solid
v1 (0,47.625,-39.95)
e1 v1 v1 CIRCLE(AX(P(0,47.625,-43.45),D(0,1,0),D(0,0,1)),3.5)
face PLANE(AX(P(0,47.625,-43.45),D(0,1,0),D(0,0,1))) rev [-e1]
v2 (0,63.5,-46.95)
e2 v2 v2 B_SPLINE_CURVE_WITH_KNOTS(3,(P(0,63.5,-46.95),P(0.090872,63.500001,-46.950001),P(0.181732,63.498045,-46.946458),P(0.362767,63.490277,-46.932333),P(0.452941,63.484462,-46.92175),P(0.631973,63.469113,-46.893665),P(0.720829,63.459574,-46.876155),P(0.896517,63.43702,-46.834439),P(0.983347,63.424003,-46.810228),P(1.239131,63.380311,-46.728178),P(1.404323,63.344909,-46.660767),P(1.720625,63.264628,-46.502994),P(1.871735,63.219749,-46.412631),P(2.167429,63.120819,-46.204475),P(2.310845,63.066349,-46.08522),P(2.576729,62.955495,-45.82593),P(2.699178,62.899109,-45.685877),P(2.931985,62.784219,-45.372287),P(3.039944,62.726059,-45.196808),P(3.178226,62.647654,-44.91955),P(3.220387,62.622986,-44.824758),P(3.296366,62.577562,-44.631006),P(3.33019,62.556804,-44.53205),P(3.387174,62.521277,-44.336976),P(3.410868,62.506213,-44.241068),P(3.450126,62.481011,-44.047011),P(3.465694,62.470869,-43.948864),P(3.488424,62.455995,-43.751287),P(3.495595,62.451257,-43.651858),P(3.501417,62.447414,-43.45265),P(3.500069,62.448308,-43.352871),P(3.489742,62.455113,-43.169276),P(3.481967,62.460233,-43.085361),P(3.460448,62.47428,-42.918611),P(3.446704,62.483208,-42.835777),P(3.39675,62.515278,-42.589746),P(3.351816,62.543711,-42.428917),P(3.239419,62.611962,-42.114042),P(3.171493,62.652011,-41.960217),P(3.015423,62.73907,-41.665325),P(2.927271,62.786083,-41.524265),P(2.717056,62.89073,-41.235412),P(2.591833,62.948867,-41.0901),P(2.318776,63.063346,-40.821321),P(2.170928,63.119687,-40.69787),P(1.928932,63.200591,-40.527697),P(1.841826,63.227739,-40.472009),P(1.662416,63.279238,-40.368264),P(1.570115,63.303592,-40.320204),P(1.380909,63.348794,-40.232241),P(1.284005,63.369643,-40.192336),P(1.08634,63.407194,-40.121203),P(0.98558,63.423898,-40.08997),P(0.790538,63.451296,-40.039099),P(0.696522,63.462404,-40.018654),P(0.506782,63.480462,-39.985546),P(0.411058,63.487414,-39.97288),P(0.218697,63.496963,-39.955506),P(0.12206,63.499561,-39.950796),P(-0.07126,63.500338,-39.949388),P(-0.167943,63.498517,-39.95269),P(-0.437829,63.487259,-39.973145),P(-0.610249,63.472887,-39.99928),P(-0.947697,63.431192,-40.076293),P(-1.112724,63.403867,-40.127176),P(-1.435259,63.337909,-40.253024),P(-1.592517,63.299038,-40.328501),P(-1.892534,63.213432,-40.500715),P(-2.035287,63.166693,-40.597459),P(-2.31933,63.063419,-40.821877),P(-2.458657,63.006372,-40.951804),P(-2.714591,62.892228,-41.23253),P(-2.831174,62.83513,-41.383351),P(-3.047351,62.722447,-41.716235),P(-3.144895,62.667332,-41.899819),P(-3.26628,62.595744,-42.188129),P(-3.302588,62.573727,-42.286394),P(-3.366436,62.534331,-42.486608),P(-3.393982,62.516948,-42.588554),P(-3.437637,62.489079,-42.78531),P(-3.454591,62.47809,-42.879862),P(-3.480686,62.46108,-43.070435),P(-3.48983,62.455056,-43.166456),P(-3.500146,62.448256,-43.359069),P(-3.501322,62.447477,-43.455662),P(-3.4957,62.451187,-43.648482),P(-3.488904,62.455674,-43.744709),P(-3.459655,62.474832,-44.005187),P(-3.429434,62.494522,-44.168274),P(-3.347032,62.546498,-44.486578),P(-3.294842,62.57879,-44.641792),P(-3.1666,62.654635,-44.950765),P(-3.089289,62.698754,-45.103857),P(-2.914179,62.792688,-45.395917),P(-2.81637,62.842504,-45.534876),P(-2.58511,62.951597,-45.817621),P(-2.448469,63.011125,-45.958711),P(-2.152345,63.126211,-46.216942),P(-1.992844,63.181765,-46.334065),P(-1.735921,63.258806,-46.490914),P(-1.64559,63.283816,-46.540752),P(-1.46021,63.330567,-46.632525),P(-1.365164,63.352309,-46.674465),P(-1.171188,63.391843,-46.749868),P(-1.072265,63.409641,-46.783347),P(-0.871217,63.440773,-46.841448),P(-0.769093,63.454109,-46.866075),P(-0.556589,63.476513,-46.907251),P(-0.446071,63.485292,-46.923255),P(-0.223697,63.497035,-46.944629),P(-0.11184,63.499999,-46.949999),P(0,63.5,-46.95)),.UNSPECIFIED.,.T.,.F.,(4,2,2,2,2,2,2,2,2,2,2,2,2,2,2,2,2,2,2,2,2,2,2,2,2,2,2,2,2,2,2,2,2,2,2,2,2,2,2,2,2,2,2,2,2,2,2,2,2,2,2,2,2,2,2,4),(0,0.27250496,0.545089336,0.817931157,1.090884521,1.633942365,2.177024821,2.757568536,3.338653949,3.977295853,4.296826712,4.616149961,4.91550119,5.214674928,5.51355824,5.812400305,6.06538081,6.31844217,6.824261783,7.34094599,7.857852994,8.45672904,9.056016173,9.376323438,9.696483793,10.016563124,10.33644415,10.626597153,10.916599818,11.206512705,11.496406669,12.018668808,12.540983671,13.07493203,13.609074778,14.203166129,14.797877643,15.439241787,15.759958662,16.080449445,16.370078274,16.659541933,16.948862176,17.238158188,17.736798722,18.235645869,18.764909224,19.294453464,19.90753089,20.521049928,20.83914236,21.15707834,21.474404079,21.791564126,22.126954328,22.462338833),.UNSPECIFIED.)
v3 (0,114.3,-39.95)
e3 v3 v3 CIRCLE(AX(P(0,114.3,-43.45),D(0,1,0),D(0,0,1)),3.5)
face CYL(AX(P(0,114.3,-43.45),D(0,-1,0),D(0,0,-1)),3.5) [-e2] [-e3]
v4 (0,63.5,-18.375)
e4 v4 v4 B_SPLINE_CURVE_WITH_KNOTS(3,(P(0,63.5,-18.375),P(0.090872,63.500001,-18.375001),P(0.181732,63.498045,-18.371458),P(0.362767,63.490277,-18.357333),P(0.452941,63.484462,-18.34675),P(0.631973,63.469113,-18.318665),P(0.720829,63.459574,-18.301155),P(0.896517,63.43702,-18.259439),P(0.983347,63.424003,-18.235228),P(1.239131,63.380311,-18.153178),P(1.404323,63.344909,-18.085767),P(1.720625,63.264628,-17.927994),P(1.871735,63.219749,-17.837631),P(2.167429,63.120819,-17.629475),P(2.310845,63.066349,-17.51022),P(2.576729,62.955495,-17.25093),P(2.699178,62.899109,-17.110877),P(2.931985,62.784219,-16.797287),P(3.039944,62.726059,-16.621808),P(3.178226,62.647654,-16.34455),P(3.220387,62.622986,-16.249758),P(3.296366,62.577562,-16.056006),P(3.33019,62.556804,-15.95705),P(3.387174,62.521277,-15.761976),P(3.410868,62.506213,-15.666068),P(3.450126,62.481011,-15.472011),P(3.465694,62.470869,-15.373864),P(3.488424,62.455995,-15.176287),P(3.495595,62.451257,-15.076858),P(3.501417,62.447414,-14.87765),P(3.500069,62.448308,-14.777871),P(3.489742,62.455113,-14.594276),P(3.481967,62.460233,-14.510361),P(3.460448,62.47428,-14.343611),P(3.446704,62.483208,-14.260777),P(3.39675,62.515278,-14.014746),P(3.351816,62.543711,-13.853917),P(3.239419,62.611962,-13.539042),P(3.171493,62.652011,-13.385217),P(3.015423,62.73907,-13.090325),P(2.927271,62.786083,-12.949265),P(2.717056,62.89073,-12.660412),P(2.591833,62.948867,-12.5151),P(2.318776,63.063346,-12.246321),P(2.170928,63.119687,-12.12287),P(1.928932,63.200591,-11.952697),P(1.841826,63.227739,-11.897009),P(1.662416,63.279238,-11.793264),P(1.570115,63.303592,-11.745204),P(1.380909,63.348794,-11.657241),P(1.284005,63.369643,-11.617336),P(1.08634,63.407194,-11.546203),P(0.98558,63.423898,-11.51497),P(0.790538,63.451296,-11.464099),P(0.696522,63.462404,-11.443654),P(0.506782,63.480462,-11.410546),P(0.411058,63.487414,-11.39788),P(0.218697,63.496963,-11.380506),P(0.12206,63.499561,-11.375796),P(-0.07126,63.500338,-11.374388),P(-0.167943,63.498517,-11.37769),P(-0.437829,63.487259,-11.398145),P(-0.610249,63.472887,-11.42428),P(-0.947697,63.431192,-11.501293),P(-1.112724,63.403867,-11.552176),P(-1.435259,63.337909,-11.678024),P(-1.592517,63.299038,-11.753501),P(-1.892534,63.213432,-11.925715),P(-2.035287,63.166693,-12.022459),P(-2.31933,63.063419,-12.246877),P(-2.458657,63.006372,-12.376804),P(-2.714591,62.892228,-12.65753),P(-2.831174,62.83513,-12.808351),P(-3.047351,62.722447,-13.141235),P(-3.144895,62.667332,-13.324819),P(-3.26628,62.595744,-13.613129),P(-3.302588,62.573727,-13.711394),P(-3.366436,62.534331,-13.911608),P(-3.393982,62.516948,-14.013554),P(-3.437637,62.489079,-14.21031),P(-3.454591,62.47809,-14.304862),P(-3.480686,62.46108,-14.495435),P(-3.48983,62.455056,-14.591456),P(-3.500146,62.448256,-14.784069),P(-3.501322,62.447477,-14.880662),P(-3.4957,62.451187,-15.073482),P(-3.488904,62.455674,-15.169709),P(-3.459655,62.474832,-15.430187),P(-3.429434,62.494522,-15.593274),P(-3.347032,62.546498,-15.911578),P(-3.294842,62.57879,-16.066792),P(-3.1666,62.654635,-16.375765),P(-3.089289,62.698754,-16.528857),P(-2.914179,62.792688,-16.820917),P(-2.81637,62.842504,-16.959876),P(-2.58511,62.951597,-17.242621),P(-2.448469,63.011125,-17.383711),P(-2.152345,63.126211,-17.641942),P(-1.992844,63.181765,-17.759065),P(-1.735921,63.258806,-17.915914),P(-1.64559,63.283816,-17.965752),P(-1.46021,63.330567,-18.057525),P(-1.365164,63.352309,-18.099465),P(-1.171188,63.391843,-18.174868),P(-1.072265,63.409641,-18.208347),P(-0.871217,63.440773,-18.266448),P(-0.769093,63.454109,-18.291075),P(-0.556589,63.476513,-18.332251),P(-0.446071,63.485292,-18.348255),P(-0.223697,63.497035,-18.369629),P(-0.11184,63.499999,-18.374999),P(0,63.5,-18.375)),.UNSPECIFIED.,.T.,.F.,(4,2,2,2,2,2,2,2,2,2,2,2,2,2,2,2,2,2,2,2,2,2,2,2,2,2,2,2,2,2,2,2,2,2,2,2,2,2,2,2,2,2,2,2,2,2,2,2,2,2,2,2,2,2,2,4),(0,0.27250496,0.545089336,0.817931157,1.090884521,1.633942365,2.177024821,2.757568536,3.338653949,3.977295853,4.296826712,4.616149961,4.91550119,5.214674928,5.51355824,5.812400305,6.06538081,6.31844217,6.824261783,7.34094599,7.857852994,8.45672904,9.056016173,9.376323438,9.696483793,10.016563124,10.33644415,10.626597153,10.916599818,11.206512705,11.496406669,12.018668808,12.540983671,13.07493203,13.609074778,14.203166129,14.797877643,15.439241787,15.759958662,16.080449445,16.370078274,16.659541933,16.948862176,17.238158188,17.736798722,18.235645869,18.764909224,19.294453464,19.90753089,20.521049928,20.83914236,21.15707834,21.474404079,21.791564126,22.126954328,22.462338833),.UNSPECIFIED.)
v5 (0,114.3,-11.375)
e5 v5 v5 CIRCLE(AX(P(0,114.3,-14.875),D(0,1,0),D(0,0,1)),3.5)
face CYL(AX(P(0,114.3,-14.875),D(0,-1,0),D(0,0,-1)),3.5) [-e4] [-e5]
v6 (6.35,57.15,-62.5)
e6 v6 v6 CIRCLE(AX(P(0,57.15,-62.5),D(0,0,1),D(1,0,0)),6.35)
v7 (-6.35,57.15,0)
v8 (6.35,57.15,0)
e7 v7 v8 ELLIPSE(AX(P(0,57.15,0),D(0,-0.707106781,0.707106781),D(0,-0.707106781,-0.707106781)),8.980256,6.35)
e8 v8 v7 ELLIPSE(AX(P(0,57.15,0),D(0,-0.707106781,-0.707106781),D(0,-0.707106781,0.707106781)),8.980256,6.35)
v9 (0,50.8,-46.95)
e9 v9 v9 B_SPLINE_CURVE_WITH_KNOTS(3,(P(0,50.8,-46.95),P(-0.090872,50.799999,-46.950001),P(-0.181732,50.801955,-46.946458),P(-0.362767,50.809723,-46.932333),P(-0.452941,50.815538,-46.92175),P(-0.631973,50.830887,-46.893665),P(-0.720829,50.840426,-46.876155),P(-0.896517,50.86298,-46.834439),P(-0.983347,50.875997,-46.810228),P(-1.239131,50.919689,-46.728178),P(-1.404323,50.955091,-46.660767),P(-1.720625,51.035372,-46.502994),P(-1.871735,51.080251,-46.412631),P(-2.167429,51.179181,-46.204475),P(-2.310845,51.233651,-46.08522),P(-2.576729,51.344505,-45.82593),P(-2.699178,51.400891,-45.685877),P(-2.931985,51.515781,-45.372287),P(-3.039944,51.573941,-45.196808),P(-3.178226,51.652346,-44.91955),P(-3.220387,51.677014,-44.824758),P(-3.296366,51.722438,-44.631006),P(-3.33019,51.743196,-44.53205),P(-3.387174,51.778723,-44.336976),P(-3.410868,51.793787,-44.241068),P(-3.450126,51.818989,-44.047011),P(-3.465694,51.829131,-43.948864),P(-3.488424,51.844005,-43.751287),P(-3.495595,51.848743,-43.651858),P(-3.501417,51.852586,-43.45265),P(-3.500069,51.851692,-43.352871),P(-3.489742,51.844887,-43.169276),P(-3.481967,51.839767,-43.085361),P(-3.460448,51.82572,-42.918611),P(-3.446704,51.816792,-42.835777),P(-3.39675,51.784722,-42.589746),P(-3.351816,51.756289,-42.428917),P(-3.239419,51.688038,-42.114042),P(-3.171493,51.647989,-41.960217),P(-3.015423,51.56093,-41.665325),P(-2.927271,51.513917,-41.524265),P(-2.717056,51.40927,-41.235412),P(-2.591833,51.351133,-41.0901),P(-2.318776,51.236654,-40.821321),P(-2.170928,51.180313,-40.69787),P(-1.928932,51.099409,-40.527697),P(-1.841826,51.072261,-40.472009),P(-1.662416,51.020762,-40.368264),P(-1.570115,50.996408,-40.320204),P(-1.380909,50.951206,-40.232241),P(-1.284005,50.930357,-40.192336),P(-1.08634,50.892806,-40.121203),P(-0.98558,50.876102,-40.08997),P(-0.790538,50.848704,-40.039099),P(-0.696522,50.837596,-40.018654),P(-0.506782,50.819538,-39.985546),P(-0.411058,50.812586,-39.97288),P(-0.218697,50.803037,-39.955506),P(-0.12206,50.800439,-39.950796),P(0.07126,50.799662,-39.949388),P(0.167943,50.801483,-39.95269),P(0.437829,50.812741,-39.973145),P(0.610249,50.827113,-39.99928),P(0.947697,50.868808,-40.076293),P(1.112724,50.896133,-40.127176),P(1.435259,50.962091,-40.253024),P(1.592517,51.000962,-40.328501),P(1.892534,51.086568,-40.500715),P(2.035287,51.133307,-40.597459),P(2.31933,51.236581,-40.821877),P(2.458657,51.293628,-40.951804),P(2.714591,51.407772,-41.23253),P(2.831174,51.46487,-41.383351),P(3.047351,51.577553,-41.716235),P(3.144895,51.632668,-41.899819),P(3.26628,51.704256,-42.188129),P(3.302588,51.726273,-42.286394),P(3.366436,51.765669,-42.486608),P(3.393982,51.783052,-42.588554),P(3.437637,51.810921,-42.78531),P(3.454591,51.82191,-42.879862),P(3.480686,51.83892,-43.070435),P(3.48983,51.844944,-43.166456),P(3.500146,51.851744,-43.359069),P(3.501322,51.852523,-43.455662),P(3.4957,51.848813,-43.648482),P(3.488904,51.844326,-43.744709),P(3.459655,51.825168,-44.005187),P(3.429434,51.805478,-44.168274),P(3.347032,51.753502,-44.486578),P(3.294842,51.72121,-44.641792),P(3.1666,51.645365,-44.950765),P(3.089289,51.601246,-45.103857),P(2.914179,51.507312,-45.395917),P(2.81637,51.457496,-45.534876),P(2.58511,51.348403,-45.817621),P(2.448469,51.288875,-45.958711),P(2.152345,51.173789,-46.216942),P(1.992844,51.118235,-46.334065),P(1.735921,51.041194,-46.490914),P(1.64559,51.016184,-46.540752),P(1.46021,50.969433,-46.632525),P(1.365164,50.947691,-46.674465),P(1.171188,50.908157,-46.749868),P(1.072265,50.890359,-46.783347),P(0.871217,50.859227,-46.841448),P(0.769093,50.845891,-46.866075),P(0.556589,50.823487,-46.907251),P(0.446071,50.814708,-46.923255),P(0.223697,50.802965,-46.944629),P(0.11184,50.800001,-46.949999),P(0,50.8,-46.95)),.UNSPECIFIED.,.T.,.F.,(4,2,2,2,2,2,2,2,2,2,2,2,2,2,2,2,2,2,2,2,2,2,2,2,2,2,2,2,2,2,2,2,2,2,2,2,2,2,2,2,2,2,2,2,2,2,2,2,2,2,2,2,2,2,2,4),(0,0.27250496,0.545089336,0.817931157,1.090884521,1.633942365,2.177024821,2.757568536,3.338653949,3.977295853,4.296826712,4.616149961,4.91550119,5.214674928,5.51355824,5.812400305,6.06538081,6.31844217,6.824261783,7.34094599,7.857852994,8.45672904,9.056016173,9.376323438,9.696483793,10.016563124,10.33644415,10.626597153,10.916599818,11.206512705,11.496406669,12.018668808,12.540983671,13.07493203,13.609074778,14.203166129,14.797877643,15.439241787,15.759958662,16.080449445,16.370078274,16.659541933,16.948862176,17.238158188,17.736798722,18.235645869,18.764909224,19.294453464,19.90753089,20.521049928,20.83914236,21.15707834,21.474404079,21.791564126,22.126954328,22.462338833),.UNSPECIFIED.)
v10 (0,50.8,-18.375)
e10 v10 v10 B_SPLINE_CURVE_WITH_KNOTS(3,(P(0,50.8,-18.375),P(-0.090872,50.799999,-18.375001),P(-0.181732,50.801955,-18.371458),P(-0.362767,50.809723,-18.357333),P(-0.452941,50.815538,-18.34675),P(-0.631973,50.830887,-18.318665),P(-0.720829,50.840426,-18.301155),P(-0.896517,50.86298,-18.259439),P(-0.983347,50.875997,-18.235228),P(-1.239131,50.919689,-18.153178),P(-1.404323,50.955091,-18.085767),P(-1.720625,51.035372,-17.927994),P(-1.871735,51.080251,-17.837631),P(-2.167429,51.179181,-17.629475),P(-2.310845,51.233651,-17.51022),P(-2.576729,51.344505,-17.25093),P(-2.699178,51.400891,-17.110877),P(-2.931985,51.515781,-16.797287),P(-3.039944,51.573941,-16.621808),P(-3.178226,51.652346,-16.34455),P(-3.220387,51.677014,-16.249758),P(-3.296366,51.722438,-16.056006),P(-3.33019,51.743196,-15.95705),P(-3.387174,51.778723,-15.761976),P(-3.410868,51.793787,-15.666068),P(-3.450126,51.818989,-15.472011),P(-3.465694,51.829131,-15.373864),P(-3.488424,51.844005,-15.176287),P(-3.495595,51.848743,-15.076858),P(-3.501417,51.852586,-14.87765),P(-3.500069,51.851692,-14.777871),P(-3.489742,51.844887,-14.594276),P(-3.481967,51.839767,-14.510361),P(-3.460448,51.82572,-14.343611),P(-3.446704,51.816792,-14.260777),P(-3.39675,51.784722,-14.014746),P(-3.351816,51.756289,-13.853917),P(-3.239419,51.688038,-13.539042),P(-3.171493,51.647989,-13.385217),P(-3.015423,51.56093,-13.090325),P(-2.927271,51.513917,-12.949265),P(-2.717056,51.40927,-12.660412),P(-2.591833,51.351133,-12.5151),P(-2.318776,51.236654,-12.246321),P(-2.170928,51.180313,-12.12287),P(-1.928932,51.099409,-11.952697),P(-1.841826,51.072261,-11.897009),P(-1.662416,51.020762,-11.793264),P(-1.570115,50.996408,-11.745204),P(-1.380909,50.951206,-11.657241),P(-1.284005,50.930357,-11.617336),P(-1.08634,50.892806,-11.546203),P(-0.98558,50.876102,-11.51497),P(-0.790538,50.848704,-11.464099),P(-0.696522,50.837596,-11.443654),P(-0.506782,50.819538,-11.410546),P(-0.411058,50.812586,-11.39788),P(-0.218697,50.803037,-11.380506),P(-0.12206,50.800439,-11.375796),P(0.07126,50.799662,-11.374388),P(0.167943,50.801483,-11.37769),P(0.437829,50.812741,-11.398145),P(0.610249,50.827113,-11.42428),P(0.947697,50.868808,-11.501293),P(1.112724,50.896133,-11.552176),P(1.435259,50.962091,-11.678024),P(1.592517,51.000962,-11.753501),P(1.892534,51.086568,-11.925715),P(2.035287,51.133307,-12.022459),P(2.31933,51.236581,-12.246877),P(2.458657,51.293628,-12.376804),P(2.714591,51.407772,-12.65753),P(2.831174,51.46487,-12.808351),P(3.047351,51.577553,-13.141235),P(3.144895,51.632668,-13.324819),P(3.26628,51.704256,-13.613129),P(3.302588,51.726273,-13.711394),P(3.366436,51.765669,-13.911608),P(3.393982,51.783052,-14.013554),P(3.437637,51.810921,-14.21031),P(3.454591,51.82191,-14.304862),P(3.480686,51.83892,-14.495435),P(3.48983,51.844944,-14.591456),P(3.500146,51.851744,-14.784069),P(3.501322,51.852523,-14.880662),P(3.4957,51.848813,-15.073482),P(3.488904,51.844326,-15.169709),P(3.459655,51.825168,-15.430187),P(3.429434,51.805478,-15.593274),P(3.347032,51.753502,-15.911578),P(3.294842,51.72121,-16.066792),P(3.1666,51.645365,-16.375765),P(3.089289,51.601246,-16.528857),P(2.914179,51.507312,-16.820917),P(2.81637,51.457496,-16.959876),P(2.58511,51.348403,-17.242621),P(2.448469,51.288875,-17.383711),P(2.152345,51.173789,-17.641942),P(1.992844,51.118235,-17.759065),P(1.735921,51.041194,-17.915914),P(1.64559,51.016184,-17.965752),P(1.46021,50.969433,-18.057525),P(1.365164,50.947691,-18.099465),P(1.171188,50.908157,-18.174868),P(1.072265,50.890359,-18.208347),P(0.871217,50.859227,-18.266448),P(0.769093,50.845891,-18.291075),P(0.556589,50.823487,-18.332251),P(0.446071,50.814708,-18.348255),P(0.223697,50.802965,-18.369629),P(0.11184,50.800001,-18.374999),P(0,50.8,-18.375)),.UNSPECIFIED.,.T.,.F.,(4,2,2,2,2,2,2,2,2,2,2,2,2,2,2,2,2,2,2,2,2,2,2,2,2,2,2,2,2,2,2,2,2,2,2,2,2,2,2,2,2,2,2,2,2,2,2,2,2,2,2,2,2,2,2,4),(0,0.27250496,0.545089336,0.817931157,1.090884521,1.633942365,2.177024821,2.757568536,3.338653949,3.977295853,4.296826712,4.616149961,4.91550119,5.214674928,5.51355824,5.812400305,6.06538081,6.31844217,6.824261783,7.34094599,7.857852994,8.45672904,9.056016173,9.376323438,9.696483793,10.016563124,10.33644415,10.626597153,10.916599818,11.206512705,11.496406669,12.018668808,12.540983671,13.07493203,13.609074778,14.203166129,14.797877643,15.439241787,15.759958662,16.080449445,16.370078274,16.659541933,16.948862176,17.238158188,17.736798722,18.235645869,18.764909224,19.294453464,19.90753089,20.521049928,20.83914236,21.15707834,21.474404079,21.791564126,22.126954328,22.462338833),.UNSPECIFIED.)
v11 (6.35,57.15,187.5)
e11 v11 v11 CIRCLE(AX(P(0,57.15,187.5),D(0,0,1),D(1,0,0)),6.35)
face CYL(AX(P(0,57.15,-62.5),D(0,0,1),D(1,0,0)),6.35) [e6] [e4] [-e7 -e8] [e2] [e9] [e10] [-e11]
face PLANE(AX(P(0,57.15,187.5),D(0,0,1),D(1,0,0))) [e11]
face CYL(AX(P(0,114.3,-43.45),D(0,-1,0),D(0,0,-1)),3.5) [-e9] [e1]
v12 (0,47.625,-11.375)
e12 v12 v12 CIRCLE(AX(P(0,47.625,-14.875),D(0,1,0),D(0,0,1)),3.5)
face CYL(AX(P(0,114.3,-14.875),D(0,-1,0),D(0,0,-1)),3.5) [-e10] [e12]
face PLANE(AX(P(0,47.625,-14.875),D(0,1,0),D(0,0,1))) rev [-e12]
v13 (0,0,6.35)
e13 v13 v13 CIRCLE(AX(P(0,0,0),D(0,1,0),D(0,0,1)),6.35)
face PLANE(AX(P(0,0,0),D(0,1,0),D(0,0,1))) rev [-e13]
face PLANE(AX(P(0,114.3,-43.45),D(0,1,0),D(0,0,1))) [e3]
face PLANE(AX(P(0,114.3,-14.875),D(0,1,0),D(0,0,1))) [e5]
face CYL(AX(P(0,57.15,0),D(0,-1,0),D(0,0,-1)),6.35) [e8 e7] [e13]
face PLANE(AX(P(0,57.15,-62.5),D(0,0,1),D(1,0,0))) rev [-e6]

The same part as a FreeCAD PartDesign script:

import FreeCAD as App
import Part
import Sketcher
from FreeCAD import Vector
Q = App.Units.Quantity

doc = App.newDocument("Part")
body = doc.addObject("PartDesign::Body", "Body")

# Sketch on XZ plane
sketch1 = body.newObject("Sketcher::SketchObject", "Sketch")
sketch1.AttachmentSupport = (doc.getObject("XZ_Plane"), [""])
sketch1.MapMode = "FlatFace"
sketch1.addGeometry(Part.Circle(Vector(0, 0, 0), Vector(0, 0, 1), 6.35), False)
sketch1.addConstraint([
    Sketcher.Constraint("Coincident", 0, 3, -1, 1),
    Sketcher.Constraint("Diameter", 0, Q("0.5 in")),
])
pad1 = body.newObject("PartDesign::Pad", "Pad")
pad1.Profile = sketch1
pad1.Length = Q("2.25 in")
pad1.Reversed = True

# Sketch on XY plane
sketch2 = body.newObject("Sketcher::SketchObject", "Sketch001")
sketch2.AttachmentSupport = (doc.getObject("XY_Plane"), [""])
sketch2.MapMode = "FlatFace"
sketch2.addGeometry(Part.Circle(Vector(0, 57.15, 0), Vector(0, 0, 1), 6.35), False)
sketch2.addConstraint([
    Sketcher.Constraint("PointOnObject", 0, 3, -2),
    Sketcher.Constraint("Diameter", 0, Q("0.5 in")),
    Sketcher.Constraint("DistanceY", -1, 1, 0, 3, Q("2.25 in")),
])
pad2 = body.newObject("PartDesign::Pad", "Pad001")
pad2.Profile = sketch2
pad2.Type = "TwoLengths"
pad2.Length = 187.5
pad2.Length2 = 62.5

# Sketch on XZ plane
sketch3 = body.newObject("Sketcher::SketchObject", "Sketch002")
sketch3.AttachmentSupport = (doc.getObject("XZ_Plane"), [""])
sketch3.MapMode = "FlatFace"
sketch3.AttachmentOffset = App.Placement(Vector(0, 0, -1.875 * 25.4), App.Rotation())
sketch3.addGeometry([
    Part.Circle(Vector(0, -14.875, 0), Vector(0, 0, 1), 3.5),
    Part.Circle(Vector(0, -43.45, 0), Vector(0, 0, 1), 3.5),
], False)
sketch3.addConstraint([
    Sketcher.Constraint("Equal", 0, 1),
    Sketcher.Constraint("PointOnObject", 0, 3, -2),
    Sketcher.Constraint("PointOnObject", 1, 3, -2),
    Sketcher.Constraint("Diameter", 0, Q("7 mm")),
    Sketcher.Constraint("DistanceY", 1, 3, 0, 3, Q("1.125 in")),
    Sketcher.Constraint("DistanceY", 0, 3, -1, 1, Q("14.875 mm")),
])
pad3 = body.newObject("PartDesign::Pad", "Pad002")
pad3.Profile = sketch3
pad3.Length = Q("2.625 in")
pad3.Reversed = True

doc.recompute()
